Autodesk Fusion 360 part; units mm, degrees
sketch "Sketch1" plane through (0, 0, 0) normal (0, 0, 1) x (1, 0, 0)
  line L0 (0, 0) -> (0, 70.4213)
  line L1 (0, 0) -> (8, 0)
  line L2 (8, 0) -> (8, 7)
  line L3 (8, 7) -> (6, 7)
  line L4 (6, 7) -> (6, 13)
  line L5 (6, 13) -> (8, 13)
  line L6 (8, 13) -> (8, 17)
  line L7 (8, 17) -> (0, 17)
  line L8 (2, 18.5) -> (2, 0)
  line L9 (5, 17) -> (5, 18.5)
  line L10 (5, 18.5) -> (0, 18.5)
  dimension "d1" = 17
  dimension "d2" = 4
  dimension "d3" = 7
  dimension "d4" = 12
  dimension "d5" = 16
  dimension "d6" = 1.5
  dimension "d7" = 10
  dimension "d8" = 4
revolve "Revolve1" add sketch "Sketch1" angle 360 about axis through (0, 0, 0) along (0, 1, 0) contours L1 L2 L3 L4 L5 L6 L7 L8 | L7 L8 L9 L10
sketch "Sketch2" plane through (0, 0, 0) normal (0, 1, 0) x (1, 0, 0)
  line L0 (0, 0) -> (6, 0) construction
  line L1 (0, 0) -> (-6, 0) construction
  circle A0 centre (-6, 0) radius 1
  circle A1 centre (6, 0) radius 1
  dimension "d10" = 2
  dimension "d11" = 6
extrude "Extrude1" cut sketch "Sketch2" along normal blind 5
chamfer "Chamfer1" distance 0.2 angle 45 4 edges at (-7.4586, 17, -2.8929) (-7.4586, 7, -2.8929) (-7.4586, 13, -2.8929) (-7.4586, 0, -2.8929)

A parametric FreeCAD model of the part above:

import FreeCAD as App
import Part
import Sketcher
Q = App.Units.Quantity


def edges_at(feature, points):
    """Names of the edges that pass closest to the given points."""
    edges = feature.Shape.Edges
    near = lambda p: min(range(len(edges)), key=lambda i: edges[i].distToShape(Part.Vertex(*p))[0])
    return sorted({f"Edge{near(p) + 1}" for p in points})

doc = App.newDocument("Part")
body = doc.addObject("PartDesign::Body", "Body")

sketch1 = body.newObject("Sketcher::SketchObject", "Sketch")
sketch1.AttachmentSupport = (doc.getObject("XY_Plane"), [""])
sketch1.MapMode = "FlatFace"
sketch1.addGeometry([
    Part.LineSegment(App.Vector(2, 0, 0), App.Vector(8, 0, 0)),
    Part.LineSegment(App.Vector(8, 0, 0), App.Vector(8, 7, 0)),
    Part.LineSegment(App.Vector(8, 7, 0), App.Vector(6, 7, 0)),
    Part.LineSegment(App.Vector(6, 7, 0), App.Vector(6, 13, 0)),
    Part.LineSegment(App.Vector(6, 13, 0), App.Vector(8, 13, 0)),
    Part.LineSegment(App.Vector(8, 13, 0), App.Vector(8, 17, 0)),
    Part.LineSegment(App.Vector(8, 17, 0), App.Vector(5, 17, 0)),
    Part.LineSegment(App.Vector(5, 17, 0), App.Vector(5, 18.5, 0)),
    Part.LineSegment(App.Vector(5, 18.5, 0), App.Vector(2, 18.5, 0)),
    Part.LineSegment(App.Vector(2, 18.5, 0), App.Vector(2, 0, 0)),
], False)
sketch1.addConstraint([
    Sketcher.Constraint("Coincident", 0, 2, 1, 1),
    Sketcher.Constraint("Coincident", 1, 2, 2, 1),
    Sketcher.Constraint("Coincident", 2, 2, 3, 1),
    Sketcher.Constraint("Coincident", 3, 2, 4, 1),
    Sketcher.Constraint("Coincident", 4, 2, 5, 1),
    Sketcher.Constraint("Coincident", 5, 2, 6, 1),
    Sketcher.Constraint("Coincident", 6, 2, 7, 1),
    Sketcher.Constraint("Coincident", 7, 2, 8, 1),
    Sketcher.Constraint("Coincident", 8, 2, 9, 1),
    Sketcher.Constraint("Coincident", 9, 2, 0, 1),
    Sketcher.Constraint("Horizontal", 0),
    Sketcher.Constraint("Vertical", 1),
    Sketcher.Constraint("Horizontal", 2),
    Sketcher.Constraint("Vertical", 3),
    Sketcher.Constraint("Horizontal", 4),
    Sketcher.Constraint("Vertical", 5),
    Sketcher.Constraint("Horizontal", 6),
    Sketcher.Constraint("Vertical", 7),
    Sketcher.Constraint("Horizontal", 8),
    Sketcher.Constraint("Vertical", 9),
    Sketcher.Constraint("PointOnObject", 0, 2, -1),
    Sketcher.Constraint("Vertical", 1, 2, 4, 2),
    Sketcher.Constraint("Equal", 6, 8),
    Sketcher.Constraint("Equal", 0, 3),
    Sketcher.Constraint("DistanceY", 1, 1, 1, 2, Q("7 mm")),
    Sketcher.Constraint("DistanceY", 5, 1, 5, 2, Q("4 mm")),
    Sketcher.Constraint("DistanceY", 7, 1, 7, 2, Q("1.5 mm")),
    Sketcher.Constraint("DistanceY", -1, 1, 5, 2, Q("17 mm")),
    Sketcher.Constraint("DistanceX", 8, 2, 3, 2, Q("4 mm")),
    Sketcher.Constraint("DistanceX", -1, 1, 0, 2, Q("8 mm")),
])
revolution = body.newObject("PartDesign::Revolution", "Revolution")
revolution.Profile = sketch1
revolution.ReferenceAxis = (sketch1, ["V_Axis"])
revolution.Angle = 360

sketch2 = body.newObject("Sketcher::SketchObject", "Sketch001")
sketch2.AttachmentSupport = (doc.getObject("XZ_Plane"), [""])
sketch2.MapMode = "FlatFace"
sketch2.addGeometry([
    Part.Circle(App.Vector(-6, 0, 0), App.Vector(0, 0, 1), 1),
    Part.Circle(App.Vector(6, 0, 0), App.Vector(0, 0, 1), 1),
], False)
sketch2.addConstraint([
    Sketcher.Constraint("Equal", 0, 1),
    Sketcher.Constraint("Symmetric", 0, 3, 1, 3, -1, 1),
    Sketcher.Constraint("PointOnObject", 0, 3, -1),
    Sketcher.Constraint("Diameter", 0, Q("2 mm")),
    Sketcher.Constraint("DistanceX", 0, 3, -1, 1, Q("6 mm")),
])
pocket1 = body.newObject("PartDesign::Pocket", "Pocket")
pocket1.Profile = sketch2
pocket1.Length = 5
doc.recompute()

chamfer = body.newObject("PartDesign::Chamfer", "Chamfer")
chamfer.Base = (pocket1, edges_at(pocket1, [
    (-7.459, 17, -2.893),
    (-7.459, 7, -2.893),
    (-7.459, 13, -2.893),
    (-7.459, 0, -2.893),
]))
chamfer.Size = 0.2

doc.recompute()
